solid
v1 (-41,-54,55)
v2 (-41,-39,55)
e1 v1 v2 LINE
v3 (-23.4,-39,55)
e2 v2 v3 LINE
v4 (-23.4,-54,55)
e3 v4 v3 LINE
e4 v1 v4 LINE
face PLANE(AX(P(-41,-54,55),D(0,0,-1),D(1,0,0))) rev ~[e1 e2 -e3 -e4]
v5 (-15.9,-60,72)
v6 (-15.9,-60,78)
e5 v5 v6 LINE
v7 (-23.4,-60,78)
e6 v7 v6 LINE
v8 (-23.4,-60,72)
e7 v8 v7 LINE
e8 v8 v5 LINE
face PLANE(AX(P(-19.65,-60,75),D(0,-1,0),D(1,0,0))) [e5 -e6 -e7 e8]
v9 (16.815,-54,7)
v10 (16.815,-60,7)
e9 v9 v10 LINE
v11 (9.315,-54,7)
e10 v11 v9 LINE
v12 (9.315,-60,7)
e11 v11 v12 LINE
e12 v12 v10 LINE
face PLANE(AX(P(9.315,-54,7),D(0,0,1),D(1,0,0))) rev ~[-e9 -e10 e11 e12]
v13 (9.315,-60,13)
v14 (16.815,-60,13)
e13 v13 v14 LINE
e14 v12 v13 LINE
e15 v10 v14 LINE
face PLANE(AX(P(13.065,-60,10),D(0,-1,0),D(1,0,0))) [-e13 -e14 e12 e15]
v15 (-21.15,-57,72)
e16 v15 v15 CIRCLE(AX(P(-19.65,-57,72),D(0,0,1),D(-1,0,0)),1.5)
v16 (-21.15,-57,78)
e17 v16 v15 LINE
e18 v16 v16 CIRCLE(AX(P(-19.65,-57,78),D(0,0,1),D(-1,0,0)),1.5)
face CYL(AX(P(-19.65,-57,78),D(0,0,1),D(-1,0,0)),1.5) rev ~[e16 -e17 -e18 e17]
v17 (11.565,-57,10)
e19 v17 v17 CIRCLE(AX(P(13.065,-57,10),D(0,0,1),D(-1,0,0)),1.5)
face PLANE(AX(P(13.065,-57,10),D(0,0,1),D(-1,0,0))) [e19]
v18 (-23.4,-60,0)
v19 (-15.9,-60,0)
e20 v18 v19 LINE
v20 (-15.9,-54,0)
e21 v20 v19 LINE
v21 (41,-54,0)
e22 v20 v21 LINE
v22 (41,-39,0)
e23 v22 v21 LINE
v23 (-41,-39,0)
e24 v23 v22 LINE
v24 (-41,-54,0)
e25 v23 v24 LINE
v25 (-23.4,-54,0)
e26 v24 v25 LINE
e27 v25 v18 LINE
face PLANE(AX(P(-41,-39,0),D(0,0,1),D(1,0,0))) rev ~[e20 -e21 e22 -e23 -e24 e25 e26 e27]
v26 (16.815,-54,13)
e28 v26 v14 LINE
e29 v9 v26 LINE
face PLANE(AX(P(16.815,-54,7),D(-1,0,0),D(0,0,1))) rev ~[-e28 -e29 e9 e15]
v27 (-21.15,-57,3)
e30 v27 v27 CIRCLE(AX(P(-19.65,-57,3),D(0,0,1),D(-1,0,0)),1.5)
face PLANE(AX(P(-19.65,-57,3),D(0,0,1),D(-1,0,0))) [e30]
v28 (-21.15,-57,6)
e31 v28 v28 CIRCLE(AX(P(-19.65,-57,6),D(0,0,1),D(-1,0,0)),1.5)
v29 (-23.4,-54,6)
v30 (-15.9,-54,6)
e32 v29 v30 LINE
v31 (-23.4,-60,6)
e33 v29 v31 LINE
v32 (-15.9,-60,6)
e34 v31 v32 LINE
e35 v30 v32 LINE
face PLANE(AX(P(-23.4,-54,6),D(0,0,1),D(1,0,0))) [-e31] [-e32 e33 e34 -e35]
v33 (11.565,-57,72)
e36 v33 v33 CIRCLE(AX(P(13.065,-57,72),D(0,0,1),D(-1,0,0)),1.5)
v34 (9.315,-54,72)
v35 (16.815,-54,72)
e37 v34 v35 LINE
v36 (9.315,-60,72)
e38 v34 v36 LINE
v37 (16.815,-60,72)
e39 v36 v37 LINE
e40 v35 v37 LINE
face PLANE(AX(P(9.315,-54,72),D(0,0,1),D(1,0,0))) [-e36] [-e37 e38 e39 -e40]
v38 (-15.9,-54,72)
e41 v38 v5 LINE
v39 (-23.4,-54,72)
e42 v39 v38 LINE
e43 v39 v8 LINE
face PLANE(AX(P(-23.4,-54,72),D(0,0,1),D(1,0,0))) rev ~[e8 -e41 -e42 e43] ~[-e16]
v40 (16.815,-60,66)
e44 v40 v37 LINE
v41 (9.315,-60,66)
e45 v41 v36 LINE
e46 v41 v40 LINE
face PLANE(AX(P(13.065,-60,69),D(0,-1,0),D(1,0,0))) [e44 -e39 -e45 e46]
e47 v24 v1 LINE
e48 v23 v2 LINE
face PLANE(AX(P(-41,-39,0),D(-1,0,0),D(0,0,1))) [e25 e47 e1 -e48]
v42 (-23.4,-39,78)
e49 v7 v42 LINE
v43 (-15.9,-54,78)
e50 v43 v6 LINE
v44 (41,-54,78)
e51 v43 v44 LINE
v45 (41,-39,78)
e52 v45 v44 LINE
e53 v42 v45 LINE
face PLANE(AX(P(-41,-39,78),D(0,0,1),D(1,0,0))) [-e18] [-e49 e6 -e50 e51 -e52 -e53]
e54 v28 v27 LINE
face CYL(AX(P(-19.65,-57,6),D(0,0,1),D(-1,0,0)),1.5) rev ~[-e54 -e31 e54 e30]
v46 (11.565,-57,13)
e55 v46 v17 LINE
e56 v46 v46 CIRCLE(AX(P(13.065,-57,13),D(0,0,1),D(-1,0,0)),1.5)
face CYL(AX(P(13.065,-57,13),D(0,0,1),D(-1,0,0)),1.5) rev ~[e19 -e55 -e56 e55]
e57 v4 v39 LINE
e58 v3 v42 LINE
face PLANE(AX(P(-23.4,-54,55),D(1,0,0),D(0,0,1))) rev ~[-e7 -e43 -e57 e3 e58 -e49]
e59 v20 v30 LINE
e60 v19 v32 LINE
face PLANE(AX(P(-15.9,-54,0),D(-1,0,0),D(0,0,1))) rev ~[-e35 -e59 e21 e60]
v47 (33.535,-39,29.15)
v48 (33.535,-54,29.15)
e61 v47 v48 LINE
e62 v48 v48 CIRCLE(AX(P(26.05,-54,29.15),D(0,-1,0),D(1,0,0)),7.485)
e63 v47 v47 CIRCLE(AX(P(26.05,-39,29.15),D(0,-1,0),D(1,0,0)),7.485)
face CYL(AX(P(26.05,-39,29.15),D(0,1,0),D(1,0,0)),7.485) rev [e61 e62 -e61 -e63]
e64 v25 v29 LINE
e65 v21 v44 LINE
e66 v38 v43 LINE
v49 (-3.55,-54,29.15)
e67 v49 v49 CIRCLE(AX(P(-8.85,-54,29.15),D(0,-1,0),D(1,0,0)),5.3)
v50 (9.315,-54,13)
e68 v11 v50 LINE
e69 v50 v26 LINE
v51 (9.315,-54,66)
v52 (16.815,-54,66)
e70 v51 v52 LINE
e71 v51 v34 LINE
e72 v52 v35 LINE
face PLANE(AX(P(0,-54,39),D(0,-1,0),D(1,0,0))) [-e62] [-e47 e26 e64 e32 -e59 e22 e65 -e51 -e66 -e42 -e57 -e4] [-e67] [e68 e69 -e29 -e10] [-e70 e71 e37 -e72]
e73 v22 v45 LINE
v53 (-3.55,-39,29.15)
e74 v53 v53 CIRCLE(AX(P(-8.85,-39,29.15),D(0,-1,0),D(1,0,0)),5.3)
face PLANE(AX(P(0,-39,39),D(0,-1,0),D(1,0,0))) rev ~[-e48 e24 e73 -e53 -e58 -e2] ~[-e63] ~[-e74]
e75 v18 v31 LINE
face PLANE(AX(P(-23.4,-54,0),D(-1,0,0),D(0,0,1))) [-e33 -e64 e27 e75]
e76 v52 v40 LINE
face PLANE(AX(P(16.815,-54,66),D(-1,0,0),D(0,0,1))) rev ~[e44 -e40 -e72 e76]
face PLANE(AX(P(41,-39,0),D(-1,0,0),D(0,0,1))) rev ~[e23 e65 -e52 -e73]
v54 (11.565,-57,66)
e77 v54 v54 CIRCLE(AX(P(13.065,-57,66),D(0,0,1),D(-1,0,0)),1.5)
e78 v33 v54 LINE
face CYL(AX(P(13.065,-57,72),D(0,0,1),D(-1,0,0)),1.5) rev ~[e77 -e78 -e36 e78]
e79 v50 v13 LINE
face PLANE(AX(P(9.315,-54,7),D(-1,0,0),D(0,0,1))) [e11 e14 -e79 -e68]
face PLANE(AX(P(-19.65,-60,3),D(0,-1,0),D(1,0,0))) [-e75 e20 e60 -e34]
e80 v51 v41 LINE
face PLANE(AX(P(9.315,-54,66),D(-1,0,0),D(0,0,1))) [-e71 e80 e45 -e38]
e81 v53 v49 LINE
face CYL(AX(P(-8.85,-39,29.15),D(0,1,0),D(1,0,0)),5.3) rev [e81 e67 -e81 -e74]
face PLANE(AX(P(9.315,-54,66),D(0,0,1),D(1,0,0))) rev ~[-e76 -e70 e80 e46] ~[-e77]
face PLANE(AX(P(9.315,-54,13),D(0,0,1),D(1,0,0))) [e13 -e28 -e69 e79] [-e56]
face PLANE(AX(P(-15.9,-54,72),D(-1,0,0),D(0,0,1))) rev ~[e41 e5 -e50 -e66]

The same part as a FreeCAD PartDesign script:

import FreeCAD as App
import Part
import Sketcher

V = App.Vector
Q = App.Units.Quantity

doc = App.newDocument("Part")
body = doc.addObject("PartDesign::Body", "Body")

sketch1 = body.newObject("Sketcher::SketchObject", "Sketch")
sketch1.AttachmentSupport = (doc.getObject("XZ_Plane"), [""])
sketch1.MapMode = "FlatFace"
sketch1.addGeometry([
    Part.LineSegment(V(-41, 78, 0), V(-41, 0, 0)),
    Part.LineSegment(V(-41, 0, 0), V(41, 0, 0)),
    Part.LineSegment(V(41, 0, 0), V(41, 78, 0)),
    Part.LineSegment(V(41, 78, 0), V(-41, 78, 0)),
    Part.Circle(V(-9, 29, 0), V(0, 0, 1), 5),
    Part.Circle(V(26, 29, 0), V(0, 0, 1), 7),
], False)
sketch1.addConstraint([
    Sketcher.Constraint("Coincident", 0, 2, 1, 1),
    Sketcher.Constraint("Coincident", 1, 2, 2, 1),
    Sketcher.Constraint("Coincident", 2, 2, 3, 1),
    Sketcher.Constraint("Coincident", 3, 2, 0, 1),
    Sketcher.Constraint("Vertical", 0),
    Sketcher.Constraint("Horizontal", 1),
    Sketcher.Constraint("Vertical", 2),
    Sketcher.Constraint("Horizontal", 3),
    Sketcher.Constraint("Symmetric", 0, 2, 1, 2, -1, 1),
    Sketcher.Constraint("Horizontal", 4, 3, 5, 3),
    Sketcher.Constraint("Diameter", 4, Q("10.6 mm")),
    Sketcher.Constraint("Diameter", 5, Q("14.97 mm")),
    Sketcher.Constraint("DistanceX", 1, 1, 1, 2, Q("82 mm")),
    Sketcher.Constraint("DistanceY", 0, 2, 0, 1, Q("78 mm")),
    Sketcher.Constraint("DistanceX", 4, 3, 5, 3, Q("34.9 mm")),
    Sketcher.Constraint("DistanceX", 4, 3, -1, 1, Q("8.85 mm")),
    Sketcher.Constraint("DistanceY", -1, 1, 4, 3, Q("29.15 mm")),
])
pad1 = body.newObject("PartDesign::Pad", "Pad")
pad1.Profile = sketch1
pad1.Length = 15

sketch2 = body.newObject("Sketcher::SketchObject", "Sketch001")
sketch2.AttachmentSupport = (doc.getObject("XZ_Plane"), [""])
sketch2.MapMode = "FlatFace"
sketch2.AttachmentOffset = App.Placement(V(0, 0, 15), App.Rotation())
sketch2.addGeometry([
    Part.LineSegment(V(-23, 6, 0), V(-23, 0, 0)),
    Part.LineSegment(V(-23, 0, 0), V(-16, 0, 0)),
    Part.LineSegment(V(-16, 0, 0), V(-16, 6, 0)),
    Part.LineSegment(V(-16, 6, 0), V(-23, 6, 0)),
    Part.LineSegment(V(-23, 78, 0), V(-23, 72, 0)),
    Part.LineSegment(V(-23, 72, 0), V(-16, 72, 0)),
    Part.LineSegment(V(-16, 72, 0), V(-16, 78, 0)),
    Part.LineSegment(V(-16, 78, 0), V(-23, 78, 0)),
    Part.LineSegment(V(9, 13, 0), V(9, 7, 0)),
    Part.LineSegment(V(9, 7, 0), V(17, 7, 0)),
    Part.LineSegment(V(17, 7, 0), V(17, 13, 0)),
    Part.LineSegment(V(17, 13, 0), V(9, 13, 0)),
    Part.LineSegment(V(9, 72, 0), V(9, 66, 0)),
    Part.LineSegment(V(9, 66, 0), V(17, 66, 0)),
    Part.LineSegment(V(17, 66, 0), V(17, 72, 0)),
    Part.LineSegment(V(17, 72, 0), V(9, 72, 0)),
], False)
sketch2.addConstraint([
    Sketcher.Constraint("Coincident", 0, 2, 1, 1),
    Sketcher.Constraint("Coincident", 1, 2, 2, 1),
    Sketcher.Constraint("Coincident", 2, 2, 3, 1),
    Sketcher.Constraint("Coincident", 3, 2, 0, 1),
    Sketcher.Constraint("Coincident", 4, 2, 5, 1),
    Sketcher.Constraint("Coincident", 5, 2, 6, 1),
    Sketcher.Constraint("Coincident", 6, 2, 7, 1),
    Sketcher.Constraint("Coincident", 7, 2, 4, 1),
    Sketcher.Constraint("Coincident", 8, 2, 9, 1),
    Sketcher.Constraint("Coincident", 9, 2, 10, 1),
    Sketcher.Constraint("Coincident", 10, 2, 11, 1),
    Sketcher.Constraint("Coincident", 11, 2, 8, 1),
    Sketcher.Constraint("Coincident", 12, 2, 13, 1),
    Sketcher.Constraint("Coincident", 13, 2, 14, 1),
    Sketcher.Constraint("Coincident", 14, 2, 15, 1),
    Sketcher.Constraint("Coincident", 15, 2, 12, 1),
    Sketcher.Constraint("Vertical", 0),
    Sketcher.Constraint("Horizontal", 1),
    Sketcher.Constraint("Vertical", 2),
    Sketcher.Constraint("Horizontal", 3),
    Sketcher.Constraint("Vertical", 4),
    Sketcher.Constraint("Horizontal", 5),
    Sketcher.Constraint("Vertical", 6),
    Sketcher.Constraint("Horizontal", 7),
    Sketcher.Constraint("Vertical", 8),
    Sketcher.Constraint("Horizontal", 9),
    Sketcher.Constraint("Vertical", 10),
    Sketcher.Constraint("Horizontal", 11),
    Sketcher.Constraint("Vertical", 12),
    Sketcher.Constraint("Horizontal", 13),
    Sketcher.Constraint("Vertical", 14),
    Sketcher.Constraint("Horizontal", 15),
    Sketcher.Constraint("PointOnObject", 0, 2, -1),
    Sketcher.Constraint("Horizontal", 5, 2, 14, 2),
    Sketcher.Constraint("Vertical", 3, 2, 4, 2),
    Sketcher.Constraint("Vertical", 2, 2, 5, 2),
    Sketcher.Constraint("Vertical", 11, 2, 12, 2),
    Sketcher.Constraint("Vertical", 10, 2, 13, 2),
    Sketcher.Constraint("Equal", 7, 9),
    Sketcher.Constraint("Equal", 2, 4),
    Sketcher.Constraint("Equal", 6, 8),
    Sketcher.Constraint("Equal", 10, 12),
    Sketcher.Constraint("DistanceY", 0, 2, 0, 1, Q("6 mm")),
    Sketcher.Constraint("DistanceX", 1, 1, 1, 2, Q("7.5 mm")),
    Sketcher.Constraint("DistanceY", -1, 1, 4, 2, Q("72 mm")),
    Sketcher.Constraint("DistanceY", -1, 1, 8, 2, Q("7 mm")),
    Sketcher.Constraint("DistanceX", 0, 2, -1, 1, Q("23.4 mm")),
    Sketcher.Constraint("DistanceX", -1, 1, 8, 2, Q("9.315 mm")),
])
pad2 = body.newObject("PartDesign::Pad", "Pad001")
pad2.Profile = sketch2
pad2.Length = 6

sketch3 = body.newObject("Sketcher::SketchObject", "Sketch002")
sketch3.AttachmentSupport = (doc.getObject("XY_Plane"), [""])
sketch3.MapMode = "FlatFace"
sketch3.AttachmentOffset = App.Placement(V(0, 0, 6), App.Rotation())
sketch3.addGeometry(Part.Circle(V(-19.6, -18, 0), V(0, 0, 1), 1.5), False)
sketch3.addConstraint([
    Sketcher.Constraint("Diameter", 0, Q("3 mm")),
    Sketcher.Constraint("DistanceY", 0, 3, -1, 1, Q("18 mm")),
    Sketcher.Constraint("DistanceX", 0, 3, -1, 1, Q("19.65 mm")),
])
pocket1 = body.newObject("PartDesign::Pocket", "Pocket")
pocket1.Profile = sketch3
pocket1.Length = 3

sketch4 = body.newObject("Sketcher::SketchObject", "Sketch003")
sketch4.AttachmentSupport = (doc.getObject("XY_Plane"), [""])
sketch4.MapMode = "FlatFace"
sketch4.AttachmentOffset = App.Placement(V(0, 0, 13), App.Rotation())
sketch4.addGeometry(Part.Circle(V(13.1, -18, 0), V(0, 0, 1), 1.5), False)
sketch4.addConstraint([
    Sketcher.Constraint("Diameter", 0, Q("3 mm")),
    Sketcher.Constraint("DistanceY", 0, 3, -1, 1, Q("18 mm")),
    Sketcher.Constraint("DistanceX", -1, 1, 0, 3, Q("13.065 mm")),
])
pocket2 = body.newObject("PartDesign::Pocket", "Pocket001")
pocket2.Profile = sketch4
pocket2.Length = 3

sketch5 = body.newObject("Sketcher::SketchObject", "Sketch004")
sketch5.AttachmentSupport = (doc.getObject("XY_Plane"), [""])
sketch5.MapMode = "FlatFace"
sketch5.AttachmentOffset = App.Placement(V(0, 0, 78), App.Rotation())
sketch5.addGeometry(Part.Circle(V(-19.6, -18, 0), V(0, 0, 1), 1.5), False)
sketch5.addConstraint([
    Sketcher.Constraint("Diameter", 0, Q("3 mm")),
    Sketcher.Constraint("DistanceY", 0, 3, -1, 1, Q("18 mm")),
    Sketcher.Constraint("DistanceX", 0, 3, -1, 1, Q("19.65 mm")),
])
pocket3 = body.newObject("PartDesign::Pocket", "Pocket002")
pocket3.Profile = sketch5
pocket3.Length = 6

sketch6 = body.newObject("Sketcher::SketchObject", "Sketch005")
sketch6.AttachmentSupport = (doc.getObject("XY_Plane"), [""])
sketch6.MapMode = "FlatFace"
sketch6.AttachmentOffset = App.Placement(V(0, 0, 72), App.Rotation())
sketch6.addGeometry(Part.Circle(V(13.1, -18, 0), V(0, 0, 1), 1.5), False)
sketch6.addConstraint([
    Sketcher.Constraint("Diameter", 0, Q("3 mm")),
    Sketcher.Constraint("DistanceY", 0, 3, -1, 1, Q("18 mm")),
    Sketcher.Constraint("DistanceX", -1, 1, 0, 3, Q("13.065 mm")),
])
pocket4 = body.newObject("PartDesign::Pocket", "Pocket003")
pocket4.Profile = sketch6
pocket4.Length = 6

sketch7 = body.newObject("Sketcher::SketchObject", "Sketch006")
sketch7.AttachmentSupport = (doc.getObject("XZ_Plane"), [""])
sketch7.MapMode = "FlatFace"
sketch7.AttachmentOffset = App.Placement(V(0, 0, 15), App.Rotation())
sketch7.addGeometry([
    Part.LineSegment(V(-41, 78, 0), V(-41, 55, 0)),
    Part.LineSegment(V(-41, 55, 0), V(-23, 55, 0)),
    Part.LineSegment(V(-23, 55, 0), V(-23, 78, 0)),
    Part.LineSegment(V(-23, 78, 0), V(-41, 78, 0)),
], False)
sketch7.addConstraint([
    Sketcher.Constraint("Coincident", 0, 2, 1, 1),
    Sketcher.Constraint("Coincident", 1, 2, 2, 1),
    Sketcher.Constraint("Coincident", 2, 2, 3, 1),
    Sketcher.Constraint("Coincident", 3, 2, 0, 1),
    Sketcher.Constraint("Vertical", 0),
    Sketcher.Constraint("Horizontal", 1),
    Sketcher.Constraint("Vertical", 2),
    Sketcher.Constraint("Horizontal", 3),
    Sketcher.Constraint("DistanceY", 0, 2, 0, 1, Q("23 mm")),
    Sketcher.Constraint("DistanceX", 1, 1, 1, 2, Q("17.6 mm")),
    Sketcher.Constraint("DistanceX", 0, 2, -1, 1, Q("41 mm")),
    Sketcher.Constraint("DistanceY", -1, 1, 0, 2, Q("55 mm")),
])
pocket5 = body.newObject("PartDesign::Pocket", "Pocket004")
pocket5.Profile = sketch7
pocket5.Type = "ThroughAll"
body2 = doc.addObject("PartDesign::Body", "Body001")
doc.recompute()

body.Placement = App.Placement(V(0, -39, 0), App.Rotation(V(0, 0, 1), 0))
boolean = body2.newObject("PartDesign::Boolean", "Boolean")
boolean.Type = "Fuse"
boolean.addObjects([body])

doc.recompute()
